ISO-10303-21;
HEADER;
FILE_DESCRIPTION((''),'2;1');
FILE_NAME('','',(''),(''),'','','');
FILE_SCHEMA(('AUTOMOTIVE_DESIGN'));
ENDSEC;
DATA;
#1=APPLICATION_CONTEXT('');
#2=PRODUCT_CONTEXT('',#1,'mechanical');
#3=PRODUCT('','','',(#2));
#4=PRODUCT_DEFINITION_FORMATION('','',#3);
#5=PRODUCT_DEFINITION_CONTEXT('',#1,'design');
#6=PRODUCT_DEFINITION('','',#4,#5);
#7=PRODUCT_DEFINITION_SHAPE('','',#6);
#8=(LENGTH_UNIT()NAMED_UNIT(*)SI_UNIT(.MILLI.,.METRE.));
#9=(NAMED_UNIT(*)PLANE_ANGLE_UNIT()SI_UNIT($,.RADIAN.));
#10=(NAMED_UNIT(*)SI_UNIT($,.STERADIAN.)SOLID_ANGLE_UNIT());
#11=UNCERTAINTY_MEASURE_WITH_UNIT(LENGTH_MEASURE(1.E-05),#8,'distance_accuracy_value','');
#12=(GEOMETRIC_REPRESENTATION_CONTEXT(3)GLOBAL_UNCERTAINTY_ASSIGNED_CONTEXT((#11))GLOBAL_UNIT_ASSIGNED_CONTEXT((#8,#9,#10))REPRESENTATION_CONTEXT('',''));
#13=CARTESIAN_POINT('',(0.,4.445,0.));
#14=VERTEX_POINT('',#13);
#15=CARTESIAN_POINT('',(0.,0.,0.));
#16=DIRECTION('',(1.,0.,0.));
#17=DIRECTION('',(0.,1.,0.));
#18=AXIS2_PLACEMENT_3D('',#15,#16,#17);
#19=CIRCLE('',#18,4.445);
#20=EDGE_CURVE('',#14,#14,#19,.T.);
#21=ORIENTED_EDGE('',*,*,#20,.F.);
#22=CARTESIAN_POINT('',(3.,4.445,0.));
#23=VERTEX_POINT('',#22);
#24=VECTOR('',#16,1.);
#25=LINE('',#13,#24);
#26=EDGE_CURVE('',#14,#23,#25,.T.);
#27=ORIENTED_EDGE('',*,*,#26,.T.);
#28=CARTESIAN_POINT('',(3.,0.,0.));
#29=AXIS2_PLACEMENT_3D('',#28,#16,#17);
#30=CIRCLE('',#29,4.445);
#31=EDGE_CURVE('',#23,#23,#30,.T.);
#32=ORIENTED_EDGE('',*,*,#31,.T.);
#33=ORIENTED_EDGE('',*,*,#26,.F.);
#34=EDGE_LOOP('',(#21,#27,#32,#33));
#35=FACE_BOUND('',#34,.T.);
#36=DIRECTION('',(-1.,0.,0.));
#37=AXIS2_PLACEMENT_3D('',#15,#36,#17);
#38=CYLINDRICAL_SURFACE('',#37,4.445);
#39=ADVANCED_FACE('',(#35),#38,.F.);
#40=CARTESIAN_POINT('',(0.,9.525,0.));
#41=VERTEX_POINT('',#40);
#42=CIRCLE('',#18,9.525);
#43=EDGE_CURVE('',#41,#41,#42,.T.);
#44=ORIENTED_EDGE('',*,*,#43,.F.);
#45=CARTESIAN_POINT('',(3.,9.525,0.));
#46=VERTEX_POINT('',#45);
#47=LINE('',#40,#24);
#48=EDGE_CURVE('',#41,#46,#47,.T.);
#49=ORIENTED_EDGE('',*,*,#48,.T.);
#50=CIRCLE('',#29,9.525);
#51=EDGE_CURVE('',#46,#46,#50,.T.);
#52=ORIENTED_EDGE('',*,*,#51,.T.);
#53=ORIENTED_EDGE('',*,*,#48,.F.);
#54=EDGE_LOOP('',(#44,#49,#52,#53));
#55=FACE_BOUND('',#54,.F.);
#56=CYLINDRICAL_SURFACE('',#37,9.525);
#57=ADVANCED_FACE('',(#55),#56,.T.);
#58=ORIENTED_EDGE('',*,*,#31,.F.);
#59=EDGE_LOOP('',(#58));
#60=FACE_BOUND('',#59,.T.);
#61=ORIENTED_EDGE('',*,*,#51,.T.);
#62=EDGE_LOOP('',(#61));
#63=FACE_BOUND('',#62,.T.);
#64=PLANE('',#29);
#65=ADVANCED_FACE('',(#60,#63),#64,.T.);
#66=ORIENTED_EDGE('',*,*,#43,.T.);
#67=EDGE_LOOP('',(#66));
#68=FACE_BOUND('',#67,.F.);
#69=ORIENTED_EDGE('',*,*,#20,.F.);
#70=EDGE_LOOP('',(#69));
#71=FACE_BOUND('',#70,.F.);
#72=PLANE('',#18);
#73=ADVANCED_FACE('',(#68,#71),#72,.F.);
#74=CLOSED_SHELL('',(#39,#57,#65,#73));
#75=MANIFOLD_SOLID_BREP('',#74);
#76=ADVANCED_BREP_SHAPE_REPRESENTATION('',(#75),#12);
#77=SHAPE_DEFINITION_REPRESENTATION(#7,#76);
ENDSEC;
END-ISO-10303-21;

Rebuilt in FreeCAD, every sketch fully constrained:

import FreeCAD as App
import Part
import Sketcher
from FreeCAD import Vector
Q = App.Units.Quantity

doc = App.newDocument("Part")
body = doc.addObject("PartDesign::Body", "Body")

sketch1 = body.newObject("Sketcher::SketchObject", "Sketch")
sketch1.AttachmentSupport = (doc.getObject("YZ_Plane"), [""])
sketch1.MapMode = "FlatFace"
sketch1.addGeometry(Part.Circle(Vector(0, 0, 0), Vector(0, 0, 1), 10), False)
sketch1.addConstraint(Sketcher.Constraint("Coincident", 0, 3, -1, 1))
sketch1.addConstraint(Sketcher.Constraint("Diameter", 0, Q("0.75 in")))
pad1 = body.newObject("PartDesign::Pad", "Pad")
pad1.Profile = sketch1
pad1.Length = 3

sketch2 = body.newObject("Sketcher::SketchObject", "Sketch001")
sketch2.AttachmentSupport = (doc.getObject("YZ_Plane"), [""])
sketch2.MapMode = "FlatFace"
sketch2.addGeometry(Part.Circle(Vector(0, 0, 0), Vector(0, 0, 1), 4.4), False)
sketch2.addConstraint(Sketcher.Constraint("Coincident", 0, 3, -1, 1))
sketch2.addConstraint(Sketcher.Constraint("Diameter", 0, Q("0.35 in")))
pocket1 = body.newObject("PartDesign::Pocket", "Pocket")
pocket1.Profile = sketch2
pocket1.Length = 3
pocket1.Reversed = True

doc.recompute()
